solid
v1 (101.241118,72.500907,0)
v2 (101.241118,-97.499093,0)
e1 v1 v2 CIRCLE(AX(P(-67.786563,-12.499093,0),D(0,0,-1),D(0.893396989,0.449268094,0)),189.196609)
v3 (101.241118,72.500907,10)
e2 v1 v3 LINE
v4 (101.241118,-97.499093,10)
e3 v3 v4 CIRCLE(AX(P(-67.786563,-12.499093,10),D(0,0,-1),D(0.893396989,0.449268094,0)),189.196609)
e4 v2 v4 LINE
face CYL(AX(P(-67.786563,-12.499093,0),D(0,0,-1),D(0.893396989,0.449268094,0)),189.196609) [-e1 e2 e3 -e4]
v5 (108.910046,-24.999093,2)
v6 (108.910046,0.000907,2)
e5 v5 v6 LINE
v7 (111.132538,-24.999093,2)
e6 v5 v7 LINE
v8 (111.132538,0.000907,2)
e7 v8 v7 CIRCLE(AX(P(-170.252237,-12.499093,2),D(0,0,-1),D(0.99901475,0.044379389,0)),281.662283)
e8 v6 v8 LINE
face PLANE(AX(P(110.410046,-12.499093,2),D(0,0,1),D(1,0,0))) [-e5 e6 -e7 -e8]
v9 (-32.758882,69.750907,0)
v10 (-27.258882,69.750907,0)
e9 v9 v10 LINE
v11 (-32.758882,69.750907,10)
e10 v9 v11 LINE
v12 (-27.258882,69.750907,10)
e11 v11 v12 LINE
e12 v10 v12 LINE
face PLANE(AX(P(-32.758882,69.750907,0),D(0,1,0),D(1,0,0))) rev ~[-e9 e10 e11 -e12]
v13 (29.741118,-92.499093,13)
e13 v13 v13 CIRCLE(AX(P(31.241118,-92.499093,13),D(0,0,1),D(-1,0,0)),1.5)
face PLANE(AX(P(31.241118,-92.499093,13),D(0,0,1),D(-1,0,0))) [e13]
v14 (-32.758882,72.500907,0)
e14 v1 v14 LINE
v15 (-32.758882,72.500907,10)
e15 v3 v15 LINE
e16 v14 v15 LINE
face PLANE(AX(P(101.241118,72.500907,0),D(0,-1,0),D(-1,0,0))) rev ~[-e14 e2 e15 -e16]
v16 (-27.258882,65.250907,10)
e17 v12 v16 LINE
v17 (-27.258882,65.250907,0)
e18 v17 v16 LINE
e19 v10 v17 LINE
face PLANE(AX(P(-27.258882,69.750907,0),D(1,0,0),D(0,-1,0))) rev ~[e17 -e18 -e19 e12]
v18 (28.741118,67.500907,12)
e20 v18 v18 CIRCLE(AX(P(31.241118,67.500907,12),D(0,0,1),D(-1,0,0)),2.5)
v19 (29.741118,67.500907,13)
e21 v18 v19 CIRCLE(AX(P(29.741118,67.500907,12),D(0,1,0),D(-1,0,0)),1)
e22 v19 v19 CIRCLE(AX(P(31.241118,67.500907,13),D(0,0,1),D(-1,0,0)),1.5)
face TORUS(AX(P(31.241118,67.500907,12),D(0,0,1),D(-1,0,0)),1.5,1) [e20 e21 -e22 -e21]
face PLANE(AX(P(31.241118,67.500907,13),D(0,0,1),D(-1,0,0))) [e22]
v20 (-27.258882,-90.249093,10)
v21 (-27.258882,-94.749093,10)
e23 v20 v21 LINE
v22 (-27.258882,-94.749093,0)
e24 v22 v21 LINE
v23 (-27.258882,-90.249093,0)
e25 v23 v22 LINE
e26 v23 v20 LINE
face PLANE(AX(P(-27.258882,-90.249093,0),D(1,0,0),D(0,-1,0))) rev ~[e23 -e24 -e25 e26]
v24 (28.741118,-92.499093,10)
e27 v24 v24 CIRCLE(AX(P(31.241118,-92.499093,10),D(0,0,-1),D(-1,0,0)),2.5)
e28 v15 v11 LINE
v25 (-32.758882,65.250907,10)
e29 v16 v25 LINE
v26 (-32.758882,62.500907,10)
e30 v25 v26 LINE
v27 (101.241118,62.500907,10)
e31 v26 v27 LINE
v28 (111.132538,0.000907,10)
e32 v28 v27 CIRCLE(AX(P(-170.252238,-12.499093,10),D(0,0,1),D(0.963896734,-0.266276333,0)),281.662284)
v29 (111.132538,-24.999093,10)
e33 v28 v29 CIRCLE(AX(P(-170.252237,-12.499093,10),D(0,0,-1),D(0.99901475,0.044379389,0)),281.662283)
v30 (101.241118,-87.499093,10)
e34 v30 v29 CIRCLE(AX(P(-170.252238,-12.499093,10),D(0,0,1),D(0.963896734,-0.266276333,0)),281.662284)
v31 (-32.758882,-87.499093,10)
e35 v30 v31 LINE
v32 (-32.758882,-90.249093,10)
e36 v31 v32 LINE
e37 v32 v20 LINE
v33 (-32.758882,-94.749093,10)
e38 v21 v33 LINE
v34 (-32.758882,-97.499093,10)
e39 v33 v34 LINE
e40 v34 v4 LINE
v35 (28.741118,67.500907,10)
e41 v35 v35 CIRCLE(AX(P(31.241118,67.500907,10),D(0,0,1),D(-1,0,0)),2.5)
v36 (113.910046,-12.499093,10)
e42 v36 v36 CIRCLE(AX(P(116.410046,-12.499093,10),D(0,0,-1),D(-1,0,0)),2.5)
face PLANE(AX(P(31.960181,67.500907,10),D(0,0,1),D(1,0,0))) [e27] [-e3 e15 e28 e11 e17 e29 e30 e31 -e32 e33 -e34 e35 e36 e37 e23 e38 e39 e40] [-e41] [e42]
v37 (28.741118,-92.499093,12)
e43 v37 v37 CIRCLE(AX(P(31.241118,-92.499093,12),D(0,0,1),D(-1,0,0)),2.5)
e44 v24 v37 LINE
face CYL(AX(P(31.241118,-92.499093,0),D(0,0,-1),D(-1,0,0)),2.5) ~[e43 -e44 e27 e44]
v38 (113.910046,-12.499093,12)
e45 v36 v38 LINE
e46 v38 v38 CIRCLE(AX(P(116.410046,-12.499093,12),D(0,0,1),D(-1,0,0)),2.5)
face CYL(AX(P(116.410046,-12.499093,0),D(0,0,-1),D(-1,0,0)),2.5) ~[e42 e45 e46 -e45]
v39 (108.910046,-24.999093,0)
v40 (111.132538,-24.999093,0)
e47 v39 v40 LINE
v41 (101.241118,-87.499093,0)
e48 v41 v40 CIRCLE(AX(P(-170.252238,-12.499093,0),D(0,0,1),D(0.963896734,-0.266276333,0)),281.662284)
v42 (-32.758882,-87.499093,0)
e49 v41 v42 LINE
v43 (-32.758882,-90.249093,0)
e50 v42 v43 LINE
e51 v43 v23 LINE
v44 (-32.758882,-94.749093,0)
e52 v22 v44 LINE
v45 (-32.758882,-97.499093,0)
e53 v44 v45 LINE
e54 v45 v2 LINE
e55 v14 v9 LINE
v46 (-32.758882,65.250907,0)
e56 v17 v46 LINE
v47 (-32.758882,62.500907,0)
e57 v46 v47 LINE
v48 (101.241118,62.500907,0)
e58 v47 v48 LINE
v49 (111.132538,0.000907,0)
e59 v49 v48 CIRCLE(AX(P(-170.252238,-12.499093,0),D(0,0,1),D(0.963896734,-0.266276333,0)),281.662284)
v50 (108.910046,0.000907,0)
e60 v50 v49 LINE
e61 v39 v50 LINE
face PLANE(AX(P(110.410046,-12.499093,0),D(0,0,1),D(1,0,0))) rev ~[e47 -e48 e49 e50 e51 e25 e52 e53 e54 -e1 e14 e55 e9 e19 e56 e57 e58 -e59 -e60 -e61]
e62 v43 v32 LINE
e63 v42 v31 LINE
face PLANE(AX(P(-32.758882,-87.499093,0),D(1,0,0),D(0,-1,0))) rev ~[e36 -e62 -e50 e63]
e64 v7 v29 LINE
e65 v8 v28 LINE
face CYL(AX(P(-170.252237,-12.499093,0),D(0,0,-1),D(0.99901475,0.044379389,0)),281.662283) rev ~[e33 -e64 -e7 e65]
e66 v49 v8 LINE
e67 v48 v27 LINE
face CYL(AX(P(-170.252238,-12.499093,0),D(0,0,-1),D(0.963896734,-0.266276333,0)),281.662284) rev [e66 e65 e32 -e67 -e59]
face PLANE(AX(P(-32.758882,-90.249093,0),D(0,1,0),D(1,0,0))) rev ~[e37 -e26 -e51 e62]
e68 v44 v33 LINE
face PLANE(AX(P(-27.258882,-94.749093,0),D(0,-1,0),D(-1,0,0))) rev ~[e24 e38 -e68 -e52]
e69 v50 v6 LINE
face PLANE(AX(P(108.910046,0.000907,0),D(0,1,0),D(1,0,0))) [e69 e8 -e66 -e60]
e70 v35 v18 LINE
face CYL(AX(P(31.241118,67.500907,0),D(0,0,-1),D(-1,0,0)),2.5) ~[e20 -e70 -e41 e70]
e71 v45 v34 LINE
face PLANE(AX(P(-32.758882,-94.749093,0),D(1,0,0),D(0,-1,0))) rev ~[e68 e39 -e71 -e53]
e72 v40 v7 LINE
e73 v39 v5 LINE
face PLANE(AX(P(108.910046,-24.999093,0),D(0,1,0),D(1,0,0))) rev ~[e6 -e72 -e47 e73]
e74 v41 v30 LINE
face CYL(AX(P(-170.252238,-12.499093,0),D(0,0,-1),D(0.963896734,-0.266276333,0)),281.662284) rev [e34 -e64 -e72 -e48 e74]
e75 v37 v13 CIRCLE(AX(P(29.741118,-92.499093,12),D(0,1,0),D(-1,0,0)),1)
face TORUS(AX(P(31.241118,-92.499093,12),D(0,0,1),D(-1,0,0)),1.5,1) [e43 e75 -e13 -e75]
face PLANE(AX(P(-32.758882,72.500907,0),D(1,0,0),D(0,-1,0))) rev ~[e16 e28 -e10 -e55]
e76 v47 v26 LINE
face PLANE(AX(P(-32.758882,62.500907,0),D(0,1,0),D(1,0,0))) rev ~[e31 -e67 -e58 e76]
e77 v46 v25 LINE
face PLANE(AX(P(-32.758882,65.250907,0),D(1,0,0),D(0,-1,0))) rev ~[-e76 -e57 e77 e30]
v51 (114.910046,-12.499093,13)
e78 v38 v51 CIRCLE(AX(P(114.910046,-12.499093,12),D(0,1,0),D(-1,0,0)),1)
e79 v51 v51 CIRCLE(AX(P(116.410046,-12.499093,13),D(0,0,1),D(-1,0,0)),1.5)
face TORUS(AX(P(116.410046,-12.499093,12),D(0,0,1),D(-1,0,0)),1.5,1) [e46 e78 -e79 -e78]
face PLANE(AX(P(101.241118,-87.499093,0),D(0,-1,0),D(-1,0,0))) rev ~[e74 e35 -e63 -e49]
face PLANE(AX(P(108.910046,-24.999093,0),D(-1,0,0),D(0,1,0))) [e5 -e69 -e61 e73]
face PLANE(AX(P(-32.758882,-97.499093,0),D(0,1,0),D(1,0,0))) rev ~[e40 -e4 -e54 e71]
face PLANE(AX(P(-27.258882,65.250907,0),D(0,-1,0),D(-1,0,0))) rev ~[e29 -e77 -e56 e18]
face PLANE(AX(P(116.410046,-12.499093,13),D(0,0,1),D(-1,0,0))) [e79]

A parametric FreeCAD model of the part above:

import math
import FreeCAD as App
import Part
import Sketcher

V = App.Vector
Q = App.Units.Quantity


def edges_at(feature, points):
    """Names of the edges that pass closest to the given points."""
    edges = feature.Shape.Edges
    near = lambda p: min(range(len(edges)), key=lambda i: edges[i].distToShape(Part.Vertex(*p))[0])
    return sorted({f"Edge{near(p) + 1}" for p in points})


def add_polygon(sketch, points):
    """Adds a closed chain of lines whose ends are joined by coincident constraints."""
    first, n = sketch.GeometryCount, len(points)
    for a, b in zip(points, points[1:] + points[:1]):
        sketch.addGeometry(Part.LineSegment(App.Vector(*a, 0), App.Vector(*b, 0)), False)
    for i in range(n):
        sketch.addConstraint(Sketcher.Constraint("Coincident", first + i, 2, first + (i + 1) % n, 1))

doc = App.newDocument("Part")
body = doc.addObject("PartDesign::Body", "Body")

# Sketch on XY plane
sketch1 = body.newObject("Sketcher::SketchObject", "Sketch")
sketch1.AttachmentSupport = (doc.getObject("XY_Plane"), [""])
sketch1.MapMode = "FlatFace"
sketch1.addGeometry([
    Part.LineSegment(V(-32.8, 65.3, 0), V(-32.8, 62.5, 0)),  # 0
    Part.LineSegment(V(-32.8, 62.5, 0), V(101.2, 62.5, 0)),  # 1
    Part.ArcOfCircle(Part.Circle(V(-170.3, -12.5, 0), V(0, 0, 1), 281.7), math.radians(2.54), math.radians(15.44)),  # 2
    Part.ArcOfCircle(Part.Circle(V(-170.3, -12.5, 0), V(0, 0, 1), 281.7), math.radians(-2.54), math.radians(2.54)),  # 3
    Part.ArcOfCircle(Part.Circle(V(-170.3, -12.5, 0), V(0, 0, 1), 281.7), math.radians(-15.44), math.radians(-2.54)),  # 4
    Part.LineSegment(V(101.2, -87.5, 0), V(-32.8, -87.5, 0)),  # 5
    Part.LineSegment(V(-32.8, -87.5, 0), V(-32.8, -90.2, 0)),  # 6
    Part.LineSegment(V(-32.8, -90.2, 0), V(-27.3, -90.2, 0)),  # 7
    Part.LineSegment(V(-27.3, -90.2, 0), V(-27.3, -94.7, 0)),  # 8
    Part.LineSegment(V(-27.3, -94.7, 0), V(-32.8, -94.7, 0)),  # 9
    Part.LineSegment(V(-32.8, -94.7, 0), V(-32.8, -97.5, 0)),  # 10
    Part.LineSegment(V(-32.8, -97.5, 0), V(101.2, -97.5, 0)),  # 11
    Part.ArcOfCircle(Part.Circle(V(-67.8, -12.5, 0), V(0, 0, 1), 189.2), math.radians(-27), math.radians(27)),  # 12
    Part.LineSegment(V(101.2, 72.5, 0), V(-32.8, 72.5, 0)),  # 13
    Part.LineSegment(V(-32.8, 72.5, 0), V(-32.8, 69.8, 0)),  # 14
    Part.LineSegment(V(-32.8, 69.8, 0), V(-27.3, 69.8, 0)),  # 15
    Part.LineSegment(V(-27.3, 69.8, 0), V(-27.3, 65.3, 0)),  # 16
    Part.LineSegment(V(-27.3, 65.3, 0), V(-32.8, 65.3, 0)),  # 17
    Part.Circle(V(31.2, 67.5, 0), V(0, 0, 1), 2.5),  # 18
    Part.Circle(V(116.4, -12.5, 0), V(0, 0, 1), 2.5),  # 19
    Part.Circle(V(31.2, -92.5, 0), V(0, 0, 1), 2.5),  # 20
], False)
sketch1.addConstraint([
    Sketcher.Constraint("Coincident", 0, 2, 1, 1),
    Sketcher.Constraint("Coincident", 1, 2, 2, 2),
    Sketcher.Constraint("Tangent", 2, 1, 3, 2),
    Sketcher.Constraint("Tangent", 3, 1, 4, 2),
    Sketcher.Constraint("Coincident", 4, 1, 5, 1),
    Sketcher.Constraint("Coincident", 5, 2, 6, 1),
    Sketcher.Constraint("Coincident", 6, 2, 7, 1),
    Sketcher.Constraint("Coincident", 7, 2, 8, 1),
    Sketcher.Constraint("Coincident", 8, 2, 9, 1),
    Sketcher.Constraint("Coincident", 9, 2, 10, 1),
    Sketcher.Constraint("Coincident", 10, 2, 11, 1),
    Sketcher.Constraint("Coincident", 11, 2, 12, 1),
    Sketcher.Constraint("Coincident", 12, 2, 13, 1),
    Sketcher.Constraint("Coincident", 13, 2, 14, 1),
    Sketcher.Constraint("Coincident", 14, 2, 15, 1),
    Sketcher.Constraint("Coincident", 15, 2, 16, 1),
    Sketcher.Constraint("Coincident", 16, 2, 17, 1),
    Sketcher.Constraint("Coincident", 17, 2, 0, 1),
    Sketcher.Constraint("Vertical", 0),
    Sketcher.Constraint("Horizontal", 1),
    Sketcher.Constraint("Horizontal", 5),
    Sketcher.Constraint("Vertical", 6),
    Sketcher.Constraint("Horizontal", 7),
    Sketcher.Constraint("Vertical", 8),
    Sketcher.Constraint("Horizontal", 9),
    Sketcher.Constraint("Vertical", 10),
    Sketcher.Constraint("Horizontal", 11),
    Sketcher.Constraint("Horizontal", 13),
    Sketcher.Constraint("Vertical", 14),
    Sketcher.Constraint("Horizontal", 15),
    Sketcher.Constraint("Vertical", 16),
    Sketcher.Constraint("Horizontal", 17),
    Sketcher.Constraint("Coincident", 4, 3, 2, 3),
    Sketcher.Constraint("Equal", 18, 19),
    Sketcher.Constraint("Equal", 19, 20),
    Sketcher.Constraint("Horizontal", 4, 3, 12, 3),
    Sketcher.Constraint("Horizontal", 12, 3, 19, 3),
    Sketcher.Constraint("Vertical", 18, 3, 20, 3),
    Sketcher.Constraint("Vertical", 2, 1, 3, 1),
    Sketcher.Constraint("Vertical", 1, 2, 4, 1),
    Sketcher.Constraint("Vertical", 0, 2, 5, 2),
    Sketcher.Constraint("Vertical", 6, 2, 9, 2),
    Sketcher.Constraint("Vertical", 4, 1, 11, 2),
    Sketcher.Constraint("Vertical", 11, 2, 12, 2),
    Sketcher.Constraint("Vertical", 10, 2, 13, 2),
    Sketcher.Constraint("Vertical", 8, 2, 15, 2),
    Sketcher.Constraint("Equal", 0, 6),
    Sketcher.Constraint("Equal", 6, 10),
    Sketcher.Constraint("Equal", 10, 14),
    Sketcher.Constraint("Diameter", 18, Q("5 mm")),
    Sketcher.Constraint("DistanceX", 1, 1, 1, 2, Q("134 mm")),
    Sketcher.Constraint("DistanceX", 7, 1, 7, 2, Q("5.5 mm")),
    Sketcher.Constraint("DistanceY", 8, 2, 8, 1, Q("4.5 mm")),
    Sketcher.Constraint("DistanceY", 12, 3, 18, 3, Q("80 mm")),
    Sketcher.Constraint("DistanceY", 20, 3, 19, 3, Q("80 mm")),
    Sketcher.Constraint("DistanceX", 0, 2, 18, 3, Q("64 mm")),
    Sketcher.Constraint("DistanceY", 0, 2, 18, 3, Q("5 mm")),
    Sketcher.Constraint("DistanceY", 3, 1, 2, 1, Q("25 mm")),
    Sketcher.Constraint("DistanceY", 10, 2, 5, 2, Q("10 mm")),
    Sketcher.Constraint("Radius", 12, Q("189.196609 mm")),
    Sketcher.Constraint("Radius", 2, Q("281.662284 mm")),
    Sketcher.Constraint("DistanceX", -1, 1, 2, 1, Q("111.132538 mm")),
    Sketcher.Constraint("DistanceX", 18, 3, 19, 3, Q("85.168928 mm")),
    Sketcher.Constraint("DistanceY", 2, 3, -1, 1, Q("12.499093 mm")),
])
pad1 = body.newObject("PartDesign::Pad", "Pad")
pad1.Profile = sketch1
pad1.Length = 10

# Sketch on XY plane
sketch2 = body.newObject("Sketcher::SketchObject", "Sketch001")
sketch2.AttachmentSupport = (doc.getObject("XY_Plane"), [""])
sketch2.MapMode = "FlatFace"
sketch2.addGeometry([
    Part.Circle(V(31.2, 67.5, 0), V(0, 0, 1), 2.5),
    Part.Circle(V(116.4, -12.5, 0), V(0, 0, 1), 2.5),
    Part.Circle(V(31.2, -92.5, 0), V(0, 0, 1), 2.5),
], False)
sketch2.addConstraint([
    Sketcher.Constraint("Equal", 0, 1),
    Sketcher.Constraint("Equal", 1, 2),
    Sketcher.Constraint("Vertical", 0, 3, 2, 3),
    Sketcher.Constraint("Diameter", 0, Q("5 mm")),
    Sketcher.Constraint("DistanceY", 1, 3, 0, 3, Q("80 mm")),
    Sketcher.Constraint("DistanceY", 2, 3, 1, 3, Q("80 mm")),
    Sketcher.Constraint("DistanceX", 0, 3, 1, 3, Q("85.168928 mm")),
    Sketcher.Constraint("DistanceX", -1, 1, 0, 3, Q("31.241118 mm")),
    Sketcher.Constraint("DistanceY", -1, 1, 0, 3, Q("67.500907 mm")),
])
pad2 = body.newObject("PartDesign::Pad", "Pad001")
pad2.Profile = sketch2
pad2.Length = 13
doc.recompute()

fillet = body.newObject("PartDesign::Fillet", "Fillet")
fillet.Base = (pad2, edges_at(pad2, [(33.741, 67.501, 13), (118.91, -12.499, 13), (33.741, -92.499, 13)]))
fillet.Radius = 1

# Sketch on XY plane
sketch3 = body.newObject("Sketcher::SketchObject", "Sketch002")
sketch3.AttachmentSupport = (doc.getObject("XY_Plane"), [""])
sketch3.MapMode = "FlatFace"
add_polygon(sketch3, [(108.9, 0), (108.9, -25), (111.9, -25), (111.9, 0)])  # lines 0-3
sketch3.addConstraint([
    Sketcher.Constraint("Vertical", 0),
    Sketcher.Constraint("Horizontal", 1),
    Sketcher.Constraint("Vertical", 2),
    Sketcher.Constraint("Horizontal", 3),
    Sketcher.Constraint("DistanceX", 1, 1, 1, 2, Q("3 mm")),
    Sketcher.Constraint("DistanceY", 0, 2, 0, 1, Q("25 mm")),
    Sketcher.Constraint("DistanceX", -1, 1, 0, 2, Q("108.910046 mm")),
    Sketcher.Constraint("DistanceY", 0, 2, -1, 1, Q("24.999093 mm")),
])
pad3 = body.newObject("PartDesign::Pad", "Pad002")
pad3.Profile = sketch3
pad3.Length = 2

doc.recompute()
